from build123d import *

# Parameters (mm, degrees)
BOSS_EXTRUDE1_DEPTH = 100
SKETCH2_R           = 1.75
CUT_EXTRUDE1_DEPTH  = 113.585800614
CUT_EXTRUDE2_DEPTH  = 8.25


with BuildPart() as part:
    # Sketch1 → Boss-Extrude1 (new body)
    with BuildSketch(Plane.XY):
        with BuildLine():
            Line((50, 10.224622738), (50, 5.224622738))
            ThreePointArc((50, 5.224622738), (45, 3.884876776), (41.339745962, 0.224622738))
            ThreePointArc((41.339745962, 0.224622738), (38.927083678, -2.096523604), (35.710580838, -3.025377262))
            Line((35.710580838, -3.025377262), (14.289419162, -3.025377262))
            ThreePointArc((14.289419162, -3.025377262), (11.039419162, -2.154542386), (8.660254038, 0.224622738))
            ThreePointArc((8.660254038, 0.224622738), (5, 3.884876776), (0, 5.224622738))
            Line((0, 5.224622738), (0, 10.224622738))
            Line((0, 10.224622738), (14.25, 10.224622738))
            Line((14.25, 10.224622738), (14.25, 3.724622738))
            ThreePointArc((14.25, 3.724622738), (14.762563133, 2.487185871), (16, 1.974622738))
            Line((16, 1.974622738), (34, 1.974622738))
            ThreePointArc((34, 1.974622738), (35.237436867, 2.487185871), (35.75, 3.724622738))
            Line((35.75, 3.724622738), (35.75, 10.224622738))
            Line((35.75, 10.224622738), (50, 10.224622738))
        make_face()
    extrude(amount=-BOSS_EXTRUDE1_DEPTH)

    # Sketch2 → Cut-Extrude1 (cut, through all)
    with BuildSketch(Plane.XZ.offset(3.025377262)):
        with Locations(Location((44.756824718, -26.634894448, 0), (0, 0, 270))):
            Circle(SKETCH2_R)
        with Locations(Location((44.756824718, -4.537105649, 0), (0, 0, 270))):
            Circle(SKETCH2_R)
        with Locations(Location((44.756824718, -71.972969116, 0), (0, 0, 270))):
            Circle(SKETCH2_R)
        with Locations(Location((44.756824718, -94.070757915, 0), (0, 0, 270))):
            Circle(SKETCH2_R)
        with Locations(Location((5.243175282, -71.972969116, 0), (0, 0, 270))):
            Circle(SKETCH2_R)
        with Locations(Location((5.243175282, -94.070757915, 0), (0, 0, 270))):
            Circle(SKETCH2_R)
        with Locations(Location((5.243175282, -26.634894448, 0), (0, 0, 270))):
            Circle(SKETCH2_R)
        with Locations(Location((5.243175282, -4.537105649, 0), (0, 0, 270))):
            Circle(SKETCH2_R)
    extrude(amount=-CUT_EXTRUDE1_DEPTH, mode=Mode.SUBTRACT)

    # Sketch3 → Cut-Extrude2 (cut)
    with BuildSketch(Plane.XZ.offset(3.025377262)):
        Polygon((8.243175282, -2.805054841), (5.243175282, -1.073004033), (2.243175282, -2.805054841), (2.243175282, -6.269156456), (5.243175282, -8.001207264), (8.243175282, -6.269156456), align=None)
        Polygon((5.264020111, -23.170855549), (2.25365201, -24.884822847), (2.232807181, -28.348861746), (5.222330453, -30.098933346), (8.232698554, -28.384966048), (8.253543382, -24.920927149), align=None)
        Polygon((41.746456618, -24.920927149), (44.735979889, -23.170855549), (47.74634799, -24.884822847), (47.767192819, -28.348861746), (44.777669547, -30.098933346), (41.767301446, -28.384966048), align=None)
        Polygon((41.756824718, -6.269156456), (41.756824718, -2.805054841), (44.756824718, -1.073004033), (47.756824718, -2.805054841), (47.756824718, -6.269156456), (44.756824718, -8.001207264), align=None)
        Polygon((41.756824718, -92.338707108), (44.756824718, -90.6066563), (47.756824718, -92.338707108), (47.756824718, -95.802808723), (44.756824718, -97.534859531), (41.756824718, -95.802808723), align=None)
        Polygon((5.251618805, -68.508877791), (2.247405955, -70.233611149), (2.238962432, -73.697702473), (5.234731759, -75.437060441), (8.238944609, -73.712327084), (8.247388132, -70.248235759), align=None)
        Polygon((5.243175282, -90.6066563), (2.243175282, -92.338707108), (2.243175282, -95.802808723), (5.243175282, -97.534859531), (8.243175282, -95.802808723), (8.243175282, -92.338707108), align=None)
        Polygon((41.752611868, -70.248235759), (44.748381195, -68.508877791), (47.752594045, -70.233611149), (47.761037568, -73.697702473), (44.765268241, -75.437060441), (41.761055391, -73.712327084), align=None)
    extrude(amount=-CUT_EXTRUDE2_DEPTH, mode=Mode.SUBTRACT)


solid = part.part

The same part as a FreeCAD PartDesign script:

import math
import FreeCAD as App
import Part
import Sketcher
from FreeCAD import Vector
Q = App.Units.Quantity


def add_polygon(sketch, points):
    """Adds a closed chain of lines whose ends are joined by coincident constraints."""
    first, n = sketch.GeometryCount, len(points)
    for a, b in zip(points, points[1:] + points[:1]):
        sketch.addGeometry(Part.LineSegment(App.Vector(*a, 0), App.Vector(*b, 0)), False)
    for i in range(n):
        sketch.addConstraint(Sketcher.Constraint("Coincident", first + i, 2, first + (i + 1) % n, 1))

doc = App.newDocument("Part")
body = doc.addObject("PartDesign::Body", "Body")

# Sketch on XY plane
sketch1 = body.newObject("Sketcher::SketchObject", "Sketch")
sketch1.AttachmentSupport = (doc.getObject("XY_Plane"), [""])
sketch1.MapMode = "FlatFace"
sketch1.addGeometry([
    Part.LineSegment(Vector(50, 5.2, 0), Vector(50, 10.2, 0)),  # 0
    Part.LineSegment(Vector(50, 10.2, 0), Vector(35.8, 10.2, 0)),  # 1
    Part.LineSegment(Vector(35.8, 10.2, 0), Vector(35.8, 3.7, 0)),  # 2
    Part.ArcOfCircle(Part.Circle(Vector(34, 3.7, 0), Vector(0, 0, 1), 1.8), math.radians(-90), math.radians(0)),  # 3
    Part.LineSegment(Vector(34, 2, 0), Vector(16, 2, 0)),  # 4
    Part.ArcOfCircle(Part.Circle(Vector(16, 3.7, 0), Vector(0, 0, 1), 1.8), math.radians(180), math.radians(270)),  # 5
    Part.LineSegment(Vector(14.2, 3.7, 0), Vector(14.2, 10.2, 0)),  # 6
    Part.LineSegment(Vector(14.2, 10.2, 0), Vector(0, 10.2, 0)),  # 7
    Part.LineSegment(Vector(0, 10.2, 0), Vector(0, 5.2, 0)),  # 8
    Part.ArcOfCircle(Part.Circle(Vector(0, -4.8, 0), Vector(0, 0, 1), 10), math.radians(30), math.radians(90)),  # 9
    Part.ArcOfCircle(Part.Circle(Vector(14.3, 3.5, 0), Vector(0, 0, 1), 6.5), math.radians(-150), math.radians(-90)),  # 10
    Part.LineSegment(Vector(14.3, -3, 0), Vector(35.7, -3, 0)),  # 11
    Part.ArcOfCircle(Part.Circle(Vector(35.4, 3.9, 0), Vector(0, 0, 1), 7), math.radians(-88), math.radians(-32)),  # 12
    Part.ArcOfCircle(Part.Circle(Vector(50, -4.8, 0), Vector(0, 0, 1), 10), math.radians(90), math.radians(150)),  # 13
], False)
sketch1.addConstraint([
    Sketcher.Constraint("Coincident", 0, 2, 1, 1),
    Sketcher.Constraint("Coincident", 1, 2, 2, 1),
    Sketcher.Constraint("Tangent", 2, 2, 3, 2),
    Sketcher.Constraint("Tangent", 3, 1, 4, 1),
    Sketcher.Constraint("Tangent", 4, 2, 5, 2),
    Sketcher.Constraint("Tangent", 5, 1, 6, 1),
    Sketcher.Constraint("Coincident", 6, 2, 7, 1),
    Sketcher.Constraint("Coincident", 7, 2, 8, 1),
    Sketcher.Constraint("Coincident", 8, 2, 9, 2),
    Sketcher.Constraint("Tangent", 9, 1, 10, 1),
    Sketcher.Constraint("Tangent", 10, 2, 11, 1),
    Sketcher.Constraint("Coincident", 11, 2, 12, 1),
    Sketcher.Constraint("Coincident", 12, 2, 13, 2),
    Sketcher.Constraint("Coincident", 13, 1, 0, 1),
    Sketcher.Constraint("Vertical", 0),
    Sketcher.Constraint("Horizontal", 1),
    Sketcher.Constraint("Vertical", 2),
    Sketcher.Constraint("Horizontal", 4),
    Sketcher.Constraint("Vertical", 6),
    Sketcher.Constraint("Horizontal", 7),
    Sketcher.Constraint("Vertical", 8),
    Sketcher.Constraint("Horizontal", 11),
    Sketcher.Constraint("Equal", 3, 5),
    Sketcher.Constraint("Equal", 9, 13),
    Sketcher.Constraint("PointOnObject", 9, 3, -2),
    Sketcher.Constraint("PointOnObject", 7, 2, -2),
    Sketcher.Constraint("Horizontal", 9, 3, 13, 3),
    Sketcher.Constraint("Horizontal", 1, 2, 6, 2),
    Sketcher.Constraint("Horizontal", 9, 1, 12, 2),
    Sketcher.Constraint("Vertical", 13, 3, 0, 2),
    Sketcher.Constraint("Equal", 1, 7),
    Sketcher.Constraint("Radius", 9, Q("10 mm")),
    Sketcher.Constraint("Radius", 10, Q("6.5 mm")),
    Sketcher.Constraint("DistanceX", 4, 2, 4, 1, Q("18 mm")),
    Sketcher.Constraint("DistanceY", 0, 1, 0, 2, Q("5 mm")),
    Sketcher.Constraint("Radius", 3, Q("1.75 mm")),
    Sketcher.Constraint("DistanceY", 2, 2, 2, 1, Q("6.5 mm")),
    Sketcher.Constraint("DistanceX", -1, 1, 3, 3, Q("34 mm")),
    Sketcher.Constraint("DistanceY", 9, 3, 9, 1, Q("5 mm")),
    Sketcher.Constraint("Radius", 12, Q("6.971942 mm")),
    Sketcher.Constraint("DistanceX", 11, 1, 11, 2, Q("21.421162 mm")),
    Sketcher.Constraint("DistanceY", -1, 1, 3, 3, Q("3.724623 mm")),
])
pad1 = body.newObject("PartDesign::Pad", "Pad")
pad1.Profile = sketch1
pad1.Length = 100
pad1.Reversed = True

# Sketch on XZ plane
sketch2 = body.newObject("Sketcher::SketchObject", "Sketch001")
sketch2.AttachmentSupport = (doc.getObject("XZ_Plane"), [""])
sketch2.MapMode = "FlatFace"
sketch2.AttachmentOffset = App.Placement(Vector(0, 0, 3.025377), App.Rotation())
sketch2.addGeometry([
    Part.Circle(Vector(44.8, -26.6, 0), Vector(0, 0, 1), 1.8),  # 0
    Part.Circle(Vector(44.8, -4.5, 0), Vector(0, 0, 1), 1.8),  # 1
    Part.Circle(Vector(44.8, -72, 0), Vector(0, 0, 1), 1.8),  # 2
    Part.Circle(Vector(44.8, -94.1, 0), Vector(0, 0, 1), 1.8),  # 3
    Part.Circle(Vector(5.2, -72, 0), Vector(0, 0, 1), 1.8),  # 4
    Part.Circle(Vector(5.2, -94.1, 0), Vector(0, 0, 1), 1.8),  # 5
    Part.Circle(Vector(5.2, -26.6, 0), Vector(0, 0, 1), 1.8),  # 6
    Part.Circle(Vector(5.2, -4.5, 0), Vector(0, 0, 1), 1.8),  # 7
], False)
sketch2.addConstraint([
    Sketcher.Constraint("Equal", 0, 1),
    Sketcher.Constraint("Equal", 1, 2),
    Sketcher.Constraint("Equal", 2, 3),
    Sketcher.Constraint("Equal", 3, 4),
    Sketcher.Constraint("Equal", 4, 5),
    Sketcher.Constraint("Equal", 5, 6),
    Sketcher.Constraint("Equal", 6, 7),
    Sketcher.Constraint("Horizontal", 2, 3, 4, 3),
    Sketcher.Constraint("Horizontal", 3, 3, 5, 3),
    Sketcher.Constraint("Horizontal", 0, 3, 6, 3),
    Sketcher.Constraint("Horizontal", 1, 3, 7, 3),
    Sketcher.Constraint("Vertical", 0, 3, 1, 3),
    Sketcher.Constraint("Vertical", 1, 3, 2, 3),
    Sketcher.Constraint("Vertical", 2, 3, 3, 3),
    Sketcher.Constraint("Vertical", 4, 3, 5, 3),
    Sketcher.Constraint("Vertical", 5, 3, 6, 3),
    Sketcher.Constraint("Vertical", 6, 3, 7, 3),
    Sketcher.Constraint("Diameter", 0, Q("3.5 mm")),
    Sketcher.Constraint("DistanceY", 2, 3, -1, 1, Q("71.972969 mm")),
    Sketcher.Constraint("DistanceY", 0, 3, 1, 3, Q("22.097789 mm")),
    Sketcher.Constraint("DistanceY", 3, 3, 2, 3, Q("22.097789 mm")),
    Sketcher.Constraint("DistanceX", 4, 3, 2, 3, Q("39.513649 mm")),
    Sketcher.Constraint("DistanceX", -1, 1, 0, 3, Q("44.756825 mm")),
    Sketcher.Constraint("DistanceY", 0, 3, -1, 1, Q("26.634894 mm")),
])
pocket1 = body.newObject("PartDesign::Pocket", "Pocket")
pocket1.Profile = sketch2
pocket1.Type = "ThroughAll"

# Sketch on XZ plane
sketch3 = body.newObject("Sketcher::SketchObject", "Sketch002")
sketch3.AttachmentSupport = (doc.getObject("XZ_Plane"), [""])
sketch3.MapMode = "FlatFace"
sketch3.AttachmentOffset = App.Placement(Vector(0, 0, 3.025377), App.Rotation())
add_polygon(sketch3, [(8.243175, -2.805055), (5.243175, -1.073004), (2.243175, -2.805055), (2.243175, -6.269156), (5.243175, -8.001207), (8.243175, -6.269156)])  # lines 0-5
add_polygon(sketch3, [(5.26402, -23.170856), (2.253652, -24.884823), (2.232807, -28.348862), (5.22233, -30.098933), (8.232699, -28.384966), (8.253543, -24.920927)])  # lines 6-11
add_polygon(sketch3, [(44.73598, -23.170856), (41.746457, -24.920927), (41.767301, -28.384966), (44.77767, -30.098933), (47.767193, -28.348862), (47.746348, -24.884823)])  # lines 12-17
add_polygon(sketch3, [(41.756825, -2.805055), (41.756825, -6.269156), (44.756825, -8.001207), (47.756825, -6.269156), (47.756825, -2.805055), (44.756825, -1.073004)])  # lines 18-23
add_polygon(sketch3, [(44.756825, -90.606656), (41.756825, -92.338707), (41.756825, -95.802809), (44.756825, -97.53486), (47.756825, -95.802809), (47.756825, -92.338707)])  # lines 24-29
add_polygon(sketch3, [(5.251619, -68.508878), (2.247406, -70.233611), (2.238962, -73.697702), (5.234732, -75.43706), (8.238945, -73.712327), (8.247388, -70.248236)])  # lines 30-35
add_polygon(sketch3, [(5.243175, -90.606656), (2.243175, -92.338707), (2.243175, -95.802809), (5.243175, -97.53486), (8.243175, -95.802809), (8.243175, -92.338707)])  # lines 36-41
add_polygon(sketch3, [(44.748381, -68.508878), (41.752612, -70.248236), (41.761055, -73.712327), (44.765268, -75.43706), (47.761038, -73.697702), (47.752594, -70.233611)])  # lines 42-47
sketch3.addConstraint([
    Sketcher.Constraint("Vertical", 2),
    Sketcher.Constraint("Vertical", 5),
    Sketcher.Constraint("Vertical", 18),
    Sketcher.Constraint("Vertical", 21),
    Sketcher.Constraint("Vertical", 25),
    Sketcher.Constraint("Vertical", 28),
    Sketcher.Constraint("Vertical", 37),
    Sketcher.Constraint("Vertical", 40),
    Sketcher.Constraint("Parallel", 0, 3),
    Sketcher.Constraint("Parallel", 1, 4),
    Sketcher.Constraint("Parallel", 6, 9),
    Sketcher.Constraint("Parallel", 7, 10),
    Sketcher.Constraint("Parallel", 8, 11),
    Sketcher.Constraint("Parallel", 12, 15),
    Sketcher.Constraint("Parallel", 13, 16),
    Sketcher.Constraint("Parallel", 14, 17),
    Sketcher.Constraint("Parallel", 3, 19),
    Sketcher.Constraint("Parallel", 4, 20),
    Sketcher.Constraint("Parallel", 19, 22),
    Sketcher.Constraint("Parallel", 20, 23),
    Sketcher.Constraint("Parallel", 23, 24),
    Sketcher.Constraint("Parallel", 22, 26),
    Sketcher.Constraint("Parallel", 24, 27),
    Sketcher.Constraint("Parallel", 26, 29),
    Sketcher.Constraint("Parallel", 30, 33),
    Sketcher.Constraint("Parallel", 31, 34),
    Sketcher.Constraint("Parallel", 32, 35),
    Sketcher.Constraint("Parallel", 27, 36),
    Sketcher.Constraint("Parallel", 29, 38),
    Sketcher.Constraint("Parallel", 36, 39),
    Sketcher.Constraint("Parallel", 38, 41),
    Sketcher.Constraint("Parallel", 42, 45),
    Sketcher.Constraint("Parallel", 43, 46),
    Sketcher.Constraint("Parallel", 44, 47),
    Sketcher.Constraint("Horizontal", 2, 2, 4, 2),
    Sketcher.Constraint("Horizontal", 1, 2, 5, 2),
    Sketcher.Constraint("Horizontal", 10, 2, 12, 2),
    Sketcher.Constraint("Horizontal", 9, 2, 13, 2),
    Sketcher.Constraint("Horizontal", 8, 2, 14, 2),
    Sketcher.Constraint("Horizontal", 7, 2, 15, 2),
    Sketcher.Constraint("Horizontal", 6, 2, 16, 2),
    Sketcher.Constraint("Horizontal", 4, 2, 18, 2),
    Sketcher.Constraint("Horizontal", 3, 2, 19, 2),
    Sketcher.Constraint("Horizontal", 18, 2, 20, 2),
    Sketcher.Constraint("Horizontal", 5, 2, 21, 2),
    Sketcher.Constraint("Horizontal", 0, 2, 22, 2),
    Sketcher.Constraint("Horizontal", 25, 2, 27, 2),
    Sketcher.Constraint("Horizontal", 24, 2, 28, 2),
    Sketcher.Constraint("Horizontal", 28, 2, 36, 2),
    Sketcher.Constraint("Horizontal", 27, 2, 37, 2),
    Sketcher.Constraint("Horizontal", 26, 2, 38, 2),
    Sketcher.Constraint("Horizontal", 37, 2, 39, 2),
    Sketcher.Constraint("Horizontal", 36, 2, 40, 2),
    Sketcher.Constraint("Horizontal", 34, 2, 42, 2),
    Sketcher.Constraint("Horizontal", 33, 2, 43, 2),
    Sketcher.Constraint("Horizontal", 32, 2, 44, 2),
    Sketcher.Constraint("Horizontal", 31, 2, 45, 2),
    Sketcher.Constraint("Horizontal", 30, 2, 46, 2),
    Sketcher.Constraint("Vertical", 0, 2, 3, 2),
    Sketcher.Constraint("Vertical", 23, 2, 24, 2),
    Sketcher.Constraint("Vertical", 22, 2, 26, 2),
    Sketcher.Constraint("Vertical", 2, 2, 36, 2),
    Sketcher.Constraint("Equal", 21, 25),
    Sketcher.Constraint("Equal", 4, 6),
    Sketcher.Constraint("Equal", 6, 7),
    Sketcher.Constraint("Equal", 7, 8),
    Sketcher.Constraint("Equal", 8, 9),
    Sketcher.Constraint("Equal", 11, 12),
    Sketcher.Constraint("Equal", 12, 13),
    Sketcher.Constraint("Equal", 13, 14),
    Sketcher.Constraint("Equal", 29, 30),
    Sketcher.Constraint("Equal", 30, 31),
    Sketcher.Constraint("Equal", 31, 32),
    Sketcher.Constraint("Equal", 32, 33),
    Sketcher.Constraint("Equal", 41, 42),
    Sketcher.Constraint("Equal", 43, 44),
    Sketcher.Constraint("Angle", 0, Q("150 deg")),
    Sketcher.Constraint("DistanceX", 1, 2, 0, 2, Q("3 mm")),
    Sketcher.Constraint("DistanceY", 2, 2, 2, 1, Q("3.464102 mm")),
    Sketcher.Constraint("DistanceX", -1, 1, 9, 2, Q("8.232699 mm")),
    Sketcher.Constraint("DistanceX", -1, 1, 13, 2, Q("41.767301 mm")),
    Sketcher.Constraint("DistanceY", 17, 2, 18, 2, Q("16.901699 mm")),
    Sketcher.Constraint("DistanceX", 7, 2, 30, 2, Q("0.014599 mm")),
    Sketcher.Constraint("DistanceY", 38, 2, 32, 2, Q("22.097799 mm")),
    Sketcher.Constraint("DistanceY", 7, 2, -1, 1, Q("28.348862 mm")),
    Sketcher.Constraint("DistanceX", -1, 1, 8, 2, Q("5.22233 mm")),
    Sketcher.Constraint("DistanceX", -1, 1, 11, 2, Q("5.26402 mm")),
    Sketcher.Constraint("DistanceY", 25, 2, -1, 1, Q("95.802809 mm")),
    Sketcher.Constraint("DistanceY", 30, 2, -1, 1, Q("70.233611 mm")),
    Sketcher.Constraint("DistanceX", -1, 1, 32, 2, Q("5.234732 mm")),
    Sketcher.Constraint("DistanceX", -1, 1, 34, 2, Q("8.247388 mm")),
    Sketcher.Constraint("DistanceX", -1, 1, 42, 2, Q("41.752612 mm")),
    Sketcher.Constraint("DistanceX", -1, 1, 44, 2, Q("44.765268 mm")),
    Sketcher.Constraint("DistanceX", 7, 2, 3, 2, Q("3.010368 mm")),
    Sketcher.Constraint("DistanceY", 8, 2, 7, 2, Q("1.750072 mm")),
    Sketcher.Constraint("DistanceX", 12, 2, 18, 2, Q("0.010368 mm")),
])
pocket2 = body.newObject("PartDesign::Pocket", "Pocket001")
pocket2.Profile = sketch3
pocket2.Length = 8.25

doc.recompute()
